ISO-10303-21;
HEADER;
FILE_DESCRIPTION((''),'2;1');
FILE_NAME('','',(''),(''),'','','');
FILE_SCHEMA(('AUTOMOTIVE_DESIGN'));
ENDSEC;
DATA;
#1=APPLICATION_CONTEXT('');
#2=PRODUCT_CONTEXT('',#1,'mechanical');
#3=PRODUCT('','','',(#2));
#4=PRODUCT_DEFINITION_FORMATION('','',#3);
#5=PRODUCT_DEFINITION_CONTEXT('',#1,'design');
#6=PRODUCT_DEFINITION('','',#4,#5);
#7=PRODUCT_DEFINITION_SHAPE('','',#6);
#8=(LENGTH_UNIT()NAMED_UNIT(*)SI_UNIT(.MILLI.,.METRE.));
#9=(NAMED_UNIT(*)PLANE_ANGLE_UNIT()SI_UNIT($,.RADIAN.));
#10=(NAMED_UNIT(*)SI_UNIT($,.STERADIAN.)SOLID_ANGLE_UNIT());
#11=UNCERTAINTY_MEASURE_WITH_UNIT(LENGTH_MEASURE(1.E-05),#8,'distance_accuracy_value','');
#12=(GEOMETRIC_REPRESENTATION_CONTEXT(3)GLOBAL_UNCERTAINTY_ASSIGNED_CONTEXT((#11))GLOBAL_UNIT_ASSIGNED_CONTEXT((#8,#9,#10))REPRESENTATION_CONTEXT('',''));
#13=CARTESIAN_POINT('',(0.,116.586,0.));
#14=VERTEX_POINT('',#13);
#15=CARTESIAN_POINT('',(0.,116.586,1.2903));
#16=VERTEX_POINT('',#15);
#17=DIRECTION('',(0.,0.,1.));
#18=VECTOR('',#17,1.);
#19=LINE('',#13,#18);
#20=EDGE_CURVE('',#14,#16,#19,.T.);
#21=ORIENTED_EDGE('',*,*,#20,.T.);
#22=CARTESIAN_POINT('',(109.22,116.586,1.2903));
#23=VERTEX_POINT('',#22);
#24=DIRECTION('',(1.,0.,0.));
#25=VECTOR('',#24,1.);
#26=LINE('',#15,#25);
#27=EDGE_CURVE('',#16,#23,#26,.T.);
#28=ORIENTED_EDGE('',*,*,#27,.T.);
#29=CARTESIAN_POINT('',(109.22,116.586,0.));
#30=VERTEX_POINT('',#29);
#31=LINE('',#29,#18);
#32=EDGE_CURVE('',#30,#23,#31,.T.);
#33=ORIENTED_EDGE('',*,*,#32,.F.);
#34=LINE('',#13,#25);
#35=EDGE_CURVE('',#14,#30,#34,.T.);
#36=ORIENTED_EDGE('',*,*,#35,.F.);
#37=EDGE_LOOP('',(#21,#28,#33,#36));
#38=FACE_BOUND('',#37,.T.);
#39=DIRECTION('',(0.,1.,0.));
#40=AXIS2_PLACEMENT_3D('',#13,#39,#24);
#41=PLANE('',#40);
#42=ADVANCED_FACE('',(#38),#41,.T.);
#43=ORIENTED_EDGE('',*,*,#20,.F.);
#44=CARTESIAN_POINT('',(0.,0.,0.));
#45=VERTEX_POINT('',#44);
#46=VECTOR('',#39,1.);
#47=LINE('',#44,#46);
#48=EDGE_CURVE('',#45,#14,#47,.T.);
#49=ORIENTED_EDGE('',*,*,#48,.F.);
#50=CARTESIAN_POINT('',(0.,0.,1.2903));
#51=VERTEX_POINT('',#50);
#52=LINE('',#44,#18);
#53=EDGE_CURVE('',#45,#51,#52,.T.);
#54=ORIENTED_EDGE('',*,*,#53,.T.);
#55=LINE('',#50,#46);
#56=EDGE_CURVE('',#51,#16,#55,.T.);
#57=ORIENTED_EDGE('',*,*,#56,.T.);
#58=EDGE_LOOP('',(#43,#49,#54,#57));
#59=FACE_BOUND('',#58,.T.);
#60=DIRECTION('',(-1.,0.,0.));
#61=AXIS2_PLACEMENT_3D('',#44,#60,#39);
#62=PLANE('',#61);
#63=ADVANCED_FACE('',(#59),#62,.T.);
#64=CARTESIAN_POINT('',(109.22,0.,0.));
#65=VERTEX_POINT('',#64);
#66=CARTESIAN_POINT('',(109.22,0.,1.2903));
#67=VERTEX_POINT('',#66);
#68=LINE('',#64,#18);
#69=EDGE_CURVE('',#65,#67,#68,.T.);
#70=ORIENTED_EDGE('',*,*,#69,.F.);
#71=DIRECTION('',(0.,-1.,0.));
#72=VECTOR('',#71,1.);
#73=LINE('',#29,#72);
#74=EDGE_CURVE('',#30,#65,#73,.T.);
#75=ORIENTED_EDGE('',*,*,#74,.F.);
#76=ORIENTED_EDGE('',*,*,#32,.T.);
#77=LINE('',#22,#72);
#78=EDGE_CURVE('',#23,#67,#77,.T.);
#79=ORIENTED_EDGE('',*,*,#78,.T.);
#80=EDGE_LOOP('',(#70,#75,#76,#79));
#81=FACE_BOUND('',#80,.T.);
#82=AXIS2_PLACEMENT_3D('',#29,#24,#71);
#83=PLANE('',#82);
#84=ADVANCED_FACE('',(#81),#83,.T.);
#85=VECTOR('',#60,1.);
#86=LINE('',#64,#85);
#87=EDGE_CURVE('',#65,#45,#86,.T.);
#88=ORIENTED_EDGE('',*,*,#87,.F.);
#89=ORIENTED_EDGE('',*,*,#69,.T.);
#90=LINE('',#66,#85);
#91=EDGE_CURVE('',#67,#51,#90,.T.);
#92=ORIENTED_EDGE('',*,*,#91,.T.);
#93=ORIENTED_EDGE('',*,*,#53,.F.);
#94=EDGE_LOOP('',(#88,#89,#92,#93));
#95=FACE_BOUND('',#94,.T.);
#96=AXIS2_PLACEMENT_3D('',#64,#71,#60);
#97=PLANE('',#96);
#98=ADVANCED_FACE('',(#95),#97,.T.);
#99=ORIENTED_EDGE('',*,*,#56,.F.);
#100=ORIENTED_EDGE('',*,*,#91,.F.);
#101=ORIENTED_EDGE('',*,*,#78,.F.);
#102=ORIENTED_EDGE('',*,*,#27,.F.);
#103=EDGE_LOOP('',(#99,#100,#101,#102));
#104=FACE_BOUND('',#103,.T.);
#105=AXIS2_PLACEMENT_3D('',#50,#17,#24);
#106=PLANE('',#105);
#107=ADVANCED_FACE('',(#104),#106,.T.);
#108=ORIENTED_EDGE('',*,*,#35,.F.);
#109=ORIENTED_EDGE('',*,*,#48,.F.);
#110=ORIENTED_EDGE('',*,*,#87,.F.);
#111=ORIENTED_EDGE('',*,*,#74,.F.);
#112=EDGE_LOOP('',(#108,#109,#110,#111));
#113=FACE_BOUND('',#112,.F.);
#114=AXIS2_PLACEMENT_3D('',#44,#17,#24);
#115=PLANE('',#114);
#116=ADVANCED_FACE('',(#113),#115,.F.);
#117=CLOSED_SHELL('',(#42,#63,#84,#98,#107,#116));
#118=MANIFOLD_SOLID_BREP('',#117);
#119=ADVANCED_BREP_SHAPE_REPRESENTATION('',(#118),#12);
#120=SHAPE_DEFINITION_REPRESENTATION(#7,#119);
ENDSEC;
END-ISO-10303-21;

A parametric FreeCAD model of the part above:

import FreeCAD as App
import Part
import Sketcher
Q = App.Units.Quantity

doc = App.newDocument("Part")
body = doc.addObject("PartDesign::Body", "Body")

# Sketch on XY plane
sketch1 = doc.addObject("Sketcher::SketchObject", "Sketch")
body.addObject(sketch1)
sketch1.AttachmentSupport = (doc.XY_Plane, [""])
sketch1.MapMode = "FlatFace"
sketch1.addGeometry(Part.LineSegment(App.Vector(0, 117, 0), App.Vector(0, 0, 0)), False)
sketch1.addGeometry(Part.LineSegment(App.Vector(0, 0, 0), App.Vector(109, 0, 0)), False)
sketch1.addGeometry(Part.LineSegment(App.Vector(109, 0, 0), App.Vector(109, 117, 0)), False)
sketch1.addGeometry(Part.LineSegment(App.Vector(109, 117, 0), App.Vector(0, 117, 0)), False)
sketch1.addConstraint(Sketcher.Constraint("Coincident", 0, 2, 1, 1))
sketch1.addConstraint(Sketcher.Constraint("Coincident", 1, 2, 2, 1))
sketch1.addConstraint(Sketcher.Constraint("Coincident", 2, 2, 3, 1))
sketch1.addConstraint(Sketcher.Constraint("Coincident", 3, 2, 0, 1))
sketch1.addConstraint(Sketcher.Constraint("Vertical", 0))
sketch1.addConstraint(Sketcher.Constraint("Horizontal", 1))
sketch1.addConstraint(Sketcher.Constraint("Vertical", 2))
sketch1.addConstraint(Sketcher.Constraint("Horizontal", 3))
sketch1.addConstraint(Sketcher.Constraint("Coincident", 0, 2, -1, 1))
sketch1.addConstraint(Sketcher.Constraint("DistanceX", 1, 1, 1, 2, Q("4.3 in")))
sketch1.addConstraint(Sketcher.Constraint("DistanceY", 0, 2, 0, 1, Q("4.59 in")))
pad1 = doc.addObject("PartDesign::Pad", "Pad")
body.addObject(pad1)
pad1.Profile = sketch1
pad1.Length = Q("0.0507992 in")

doc.recompute()
